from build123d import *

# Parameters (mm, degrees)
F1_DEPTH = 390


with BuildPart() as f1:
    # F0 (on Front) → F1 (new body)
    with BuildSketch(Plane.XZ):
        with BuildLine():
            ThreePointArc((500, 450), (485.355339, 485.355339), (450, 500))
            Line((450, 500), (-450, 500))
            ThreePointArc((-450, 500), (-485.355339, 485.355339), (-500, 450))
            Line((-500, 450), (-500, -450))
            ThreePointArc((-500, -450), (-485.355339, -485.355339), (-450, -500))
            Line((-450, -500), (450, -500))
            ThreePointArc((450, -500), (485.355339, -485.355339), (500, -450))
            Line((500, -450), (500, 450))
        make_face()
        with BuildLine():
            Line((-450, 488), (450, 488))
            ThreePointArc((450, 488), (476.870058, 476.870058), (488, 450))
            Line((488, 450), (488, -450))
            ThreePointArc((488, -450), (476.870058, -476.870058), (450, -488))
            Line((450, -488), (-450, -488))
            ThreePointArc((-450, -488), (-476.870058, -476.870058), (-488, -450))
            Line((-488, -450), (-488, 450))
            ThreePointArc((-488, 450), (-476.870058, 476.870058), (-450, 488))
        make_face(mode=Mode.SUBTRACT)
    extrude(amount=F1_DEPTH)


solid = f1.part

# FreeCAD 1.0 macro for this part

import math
import FreeCAD as App
import Part
import Sketcher

V = App.Vector
Q = App.Units.Quantity

doc = App.newDocument("Part")
params = doc.addObject("Spreadsheet::Sheet", "Params")
for row, (alias, value) in enumerate([
    ("sketch1_radius", "50 mm"),
    ("sketch1_radius2", "37.999999 mm"),
    ("sketch1_width", "900 mm"),
    ("pad1_length", "390 mm"),
], start=1):
    params.set(f"A{row}", alias)
    params.set(f"B{row}", "=" + value)
    params.setAlias(f"B{row}", alias)

body = doc.addObject("PartDesign::Body", "Body")

sketch1 = body.newObject("Sketcher::SketchObject", "Sketch")
sketch1.AttachmentSupport = (doc.getObject("XZ_Plane"), [""])
sketch1.MapMode = "FlatFace"
sketch1.addGeometry([
    Part.ArcOfCircle(Part.Circle(V(450, 450, 0), V(0, 0, 1), 50), math.radians(0), math.radians(90)),
    Part.LineSegment(V(450, 500, 0), V(-450, 500, 0)),
    Part.ArcOfCircle(Part.Circle(V(-450, 450, 0), V(0, 0, 1), 50), math.radians(90), math.radians(180)),
    Part.LineSegment(V(-500, 450, 0), V(-500, -450, 0)),
    Part.ArcOfCircle(Part.Circle(V(-450, -450, 0), V(0, 0, 1), 50), math.radians(-180), math.radians(-90)),
    Part.LineSegment(V(-450, -500, 0), V(450, -500, 0)),
    Part.ArcOfCircle(Part.Circle(V(450, -450, 0), V(0, 0, 1), 50), math.radians(-90), math.radians(0)),
    Part.LineSegment(V(500, -450, 0), V(500, 450, 0)),
    Part.ArcOfCircle(Part.Circle(V(-450, 450, 0), V(0, 0, 1), 38), math.radians(90), math.radians(180)),
    Part.LineSegment(V(-450, 488, 0), V(450, 488, 0)),
    Part.ArcOfCircle(Part.Circle(V(450, 450, 0), V(0, 0, 1), 38), math.radians(0), math.radians(90)),
    Part.LineSegment(V(488, 450, 0), V(488, -450, 0)),
    Part.ArcOfCircle(Part.Circle(V(450, -450, 0), V(0, 0, 1), 38), math.radians(-90), math.radians(0)),
    Part.LineSegment(V(450, -488, 0), V(-450, -488, 0)),
    Part.ArcOfCircle(Part.Circle(V(-450, -450, 0), V(0, 0, 1), 38), math.radians(180), math.radians(270)),
    Part.LineSegment(V(-488, -450, 0), V(-488, 450, 0)),
], False)
sketch1.addConstraint([
    Sketcher.Constraint("Tangent", 0, 2, 1, 1),
    Sketcher.Constraint("Tangent", 1, 2, 2, 1),
    Sketcher.Constraint("Tangent", 2, 2, 3, 1),
    Sketcher.Constraint("Tangent", 3, 2, 4, 1),
    Sketcher.Constraint("Tangent", 4, 2, 5, 1),
    Sketcher.Constraint("Tangent", 5, 2, 6, 1),
    Sketcher.Constraint("Tangent", 6, 2, 7, 1),
    Sketcher.Constraint("Tangent", 7, 2, 0, 1),
    Sketcher.Constraint("Tangent", 8, 1, 9, 1),
    Sketcher.Constraint("Tangent", 9, 2, 10, 2),
    Sketcher.Constraint("Tangent", 10, 1, 11, 1),
    Sketcher.Constraint("Tangent", 11, 2, 12, 2),
    Sketcher.Constraint("Tangent", 12, 1, 13, 1),
    Sketcher.Constraint("Tangent", 13, 2, 14, 2),
    Sketcher.Constraint("Tangent", 14, 1, 15, 1),
    Sketcher.Constraint("Tangent", 15, 2, 8, 2),
    Sketcher.Constraint("Horizontal", 1),
    Sketcher.Constraint("Vertical", 3),
    Sketcher.Constraint("Horizontal", 5),
    Sketcher.Constraint("Vertical", 7),
    Sketcher.Constraint("Horizontal", 9),
    Sketcher.Constraint("Vertical", 11),
    Sketcher.Constraint("Horizontal", 13),
    Sketcher.Constraint("Vertical", 15),
    Sketcher.Constraint("Coincident", 8, 3, 2, 3),
    Sketcher.Constraint("Coincident", 10, 3, 0, 3),
    Sketcher.Constraint("Coincident", 12, 3, 6, 3),
    Sketcher.Constraint("Equal", 0, 2),
    Sketcher.Constraint("Equal", 2, 4),
    Sketcher.Constraint("Equal", 4, 6),
    Sketcher.Constraint("Equal", 12, 14),
    Sketcher.Constraint("Symmetric", 0, 3, 4, 3, -1, 1),
    Sketcher.Constraint("Equal", 13, 3),
    Sketcher.Constraint("Radius", 0, Q("50 mm")),
    Sketcher.Constraint("Radius", 8, Q("37.999999 mm")),
    Sketcher.Constraint("DistanceX", 1, 2, 1, 1, Q("900 mm")),
])
sketch1.setExpression("Constraints[33]", "Params.sketch1_radius")
sketch1.setExpression("Constraints[34]", "Params.sketch1_radius2")
sketch1.setExpression("Constraints[35]", "Params.sketch1_width")
pad1 = body.newObject("PartDesign::Pad", "Pad")
pad1.Profile = sketch1
pad1.setExpression("Length", "Params.pad1_length")

doc.recompute()
